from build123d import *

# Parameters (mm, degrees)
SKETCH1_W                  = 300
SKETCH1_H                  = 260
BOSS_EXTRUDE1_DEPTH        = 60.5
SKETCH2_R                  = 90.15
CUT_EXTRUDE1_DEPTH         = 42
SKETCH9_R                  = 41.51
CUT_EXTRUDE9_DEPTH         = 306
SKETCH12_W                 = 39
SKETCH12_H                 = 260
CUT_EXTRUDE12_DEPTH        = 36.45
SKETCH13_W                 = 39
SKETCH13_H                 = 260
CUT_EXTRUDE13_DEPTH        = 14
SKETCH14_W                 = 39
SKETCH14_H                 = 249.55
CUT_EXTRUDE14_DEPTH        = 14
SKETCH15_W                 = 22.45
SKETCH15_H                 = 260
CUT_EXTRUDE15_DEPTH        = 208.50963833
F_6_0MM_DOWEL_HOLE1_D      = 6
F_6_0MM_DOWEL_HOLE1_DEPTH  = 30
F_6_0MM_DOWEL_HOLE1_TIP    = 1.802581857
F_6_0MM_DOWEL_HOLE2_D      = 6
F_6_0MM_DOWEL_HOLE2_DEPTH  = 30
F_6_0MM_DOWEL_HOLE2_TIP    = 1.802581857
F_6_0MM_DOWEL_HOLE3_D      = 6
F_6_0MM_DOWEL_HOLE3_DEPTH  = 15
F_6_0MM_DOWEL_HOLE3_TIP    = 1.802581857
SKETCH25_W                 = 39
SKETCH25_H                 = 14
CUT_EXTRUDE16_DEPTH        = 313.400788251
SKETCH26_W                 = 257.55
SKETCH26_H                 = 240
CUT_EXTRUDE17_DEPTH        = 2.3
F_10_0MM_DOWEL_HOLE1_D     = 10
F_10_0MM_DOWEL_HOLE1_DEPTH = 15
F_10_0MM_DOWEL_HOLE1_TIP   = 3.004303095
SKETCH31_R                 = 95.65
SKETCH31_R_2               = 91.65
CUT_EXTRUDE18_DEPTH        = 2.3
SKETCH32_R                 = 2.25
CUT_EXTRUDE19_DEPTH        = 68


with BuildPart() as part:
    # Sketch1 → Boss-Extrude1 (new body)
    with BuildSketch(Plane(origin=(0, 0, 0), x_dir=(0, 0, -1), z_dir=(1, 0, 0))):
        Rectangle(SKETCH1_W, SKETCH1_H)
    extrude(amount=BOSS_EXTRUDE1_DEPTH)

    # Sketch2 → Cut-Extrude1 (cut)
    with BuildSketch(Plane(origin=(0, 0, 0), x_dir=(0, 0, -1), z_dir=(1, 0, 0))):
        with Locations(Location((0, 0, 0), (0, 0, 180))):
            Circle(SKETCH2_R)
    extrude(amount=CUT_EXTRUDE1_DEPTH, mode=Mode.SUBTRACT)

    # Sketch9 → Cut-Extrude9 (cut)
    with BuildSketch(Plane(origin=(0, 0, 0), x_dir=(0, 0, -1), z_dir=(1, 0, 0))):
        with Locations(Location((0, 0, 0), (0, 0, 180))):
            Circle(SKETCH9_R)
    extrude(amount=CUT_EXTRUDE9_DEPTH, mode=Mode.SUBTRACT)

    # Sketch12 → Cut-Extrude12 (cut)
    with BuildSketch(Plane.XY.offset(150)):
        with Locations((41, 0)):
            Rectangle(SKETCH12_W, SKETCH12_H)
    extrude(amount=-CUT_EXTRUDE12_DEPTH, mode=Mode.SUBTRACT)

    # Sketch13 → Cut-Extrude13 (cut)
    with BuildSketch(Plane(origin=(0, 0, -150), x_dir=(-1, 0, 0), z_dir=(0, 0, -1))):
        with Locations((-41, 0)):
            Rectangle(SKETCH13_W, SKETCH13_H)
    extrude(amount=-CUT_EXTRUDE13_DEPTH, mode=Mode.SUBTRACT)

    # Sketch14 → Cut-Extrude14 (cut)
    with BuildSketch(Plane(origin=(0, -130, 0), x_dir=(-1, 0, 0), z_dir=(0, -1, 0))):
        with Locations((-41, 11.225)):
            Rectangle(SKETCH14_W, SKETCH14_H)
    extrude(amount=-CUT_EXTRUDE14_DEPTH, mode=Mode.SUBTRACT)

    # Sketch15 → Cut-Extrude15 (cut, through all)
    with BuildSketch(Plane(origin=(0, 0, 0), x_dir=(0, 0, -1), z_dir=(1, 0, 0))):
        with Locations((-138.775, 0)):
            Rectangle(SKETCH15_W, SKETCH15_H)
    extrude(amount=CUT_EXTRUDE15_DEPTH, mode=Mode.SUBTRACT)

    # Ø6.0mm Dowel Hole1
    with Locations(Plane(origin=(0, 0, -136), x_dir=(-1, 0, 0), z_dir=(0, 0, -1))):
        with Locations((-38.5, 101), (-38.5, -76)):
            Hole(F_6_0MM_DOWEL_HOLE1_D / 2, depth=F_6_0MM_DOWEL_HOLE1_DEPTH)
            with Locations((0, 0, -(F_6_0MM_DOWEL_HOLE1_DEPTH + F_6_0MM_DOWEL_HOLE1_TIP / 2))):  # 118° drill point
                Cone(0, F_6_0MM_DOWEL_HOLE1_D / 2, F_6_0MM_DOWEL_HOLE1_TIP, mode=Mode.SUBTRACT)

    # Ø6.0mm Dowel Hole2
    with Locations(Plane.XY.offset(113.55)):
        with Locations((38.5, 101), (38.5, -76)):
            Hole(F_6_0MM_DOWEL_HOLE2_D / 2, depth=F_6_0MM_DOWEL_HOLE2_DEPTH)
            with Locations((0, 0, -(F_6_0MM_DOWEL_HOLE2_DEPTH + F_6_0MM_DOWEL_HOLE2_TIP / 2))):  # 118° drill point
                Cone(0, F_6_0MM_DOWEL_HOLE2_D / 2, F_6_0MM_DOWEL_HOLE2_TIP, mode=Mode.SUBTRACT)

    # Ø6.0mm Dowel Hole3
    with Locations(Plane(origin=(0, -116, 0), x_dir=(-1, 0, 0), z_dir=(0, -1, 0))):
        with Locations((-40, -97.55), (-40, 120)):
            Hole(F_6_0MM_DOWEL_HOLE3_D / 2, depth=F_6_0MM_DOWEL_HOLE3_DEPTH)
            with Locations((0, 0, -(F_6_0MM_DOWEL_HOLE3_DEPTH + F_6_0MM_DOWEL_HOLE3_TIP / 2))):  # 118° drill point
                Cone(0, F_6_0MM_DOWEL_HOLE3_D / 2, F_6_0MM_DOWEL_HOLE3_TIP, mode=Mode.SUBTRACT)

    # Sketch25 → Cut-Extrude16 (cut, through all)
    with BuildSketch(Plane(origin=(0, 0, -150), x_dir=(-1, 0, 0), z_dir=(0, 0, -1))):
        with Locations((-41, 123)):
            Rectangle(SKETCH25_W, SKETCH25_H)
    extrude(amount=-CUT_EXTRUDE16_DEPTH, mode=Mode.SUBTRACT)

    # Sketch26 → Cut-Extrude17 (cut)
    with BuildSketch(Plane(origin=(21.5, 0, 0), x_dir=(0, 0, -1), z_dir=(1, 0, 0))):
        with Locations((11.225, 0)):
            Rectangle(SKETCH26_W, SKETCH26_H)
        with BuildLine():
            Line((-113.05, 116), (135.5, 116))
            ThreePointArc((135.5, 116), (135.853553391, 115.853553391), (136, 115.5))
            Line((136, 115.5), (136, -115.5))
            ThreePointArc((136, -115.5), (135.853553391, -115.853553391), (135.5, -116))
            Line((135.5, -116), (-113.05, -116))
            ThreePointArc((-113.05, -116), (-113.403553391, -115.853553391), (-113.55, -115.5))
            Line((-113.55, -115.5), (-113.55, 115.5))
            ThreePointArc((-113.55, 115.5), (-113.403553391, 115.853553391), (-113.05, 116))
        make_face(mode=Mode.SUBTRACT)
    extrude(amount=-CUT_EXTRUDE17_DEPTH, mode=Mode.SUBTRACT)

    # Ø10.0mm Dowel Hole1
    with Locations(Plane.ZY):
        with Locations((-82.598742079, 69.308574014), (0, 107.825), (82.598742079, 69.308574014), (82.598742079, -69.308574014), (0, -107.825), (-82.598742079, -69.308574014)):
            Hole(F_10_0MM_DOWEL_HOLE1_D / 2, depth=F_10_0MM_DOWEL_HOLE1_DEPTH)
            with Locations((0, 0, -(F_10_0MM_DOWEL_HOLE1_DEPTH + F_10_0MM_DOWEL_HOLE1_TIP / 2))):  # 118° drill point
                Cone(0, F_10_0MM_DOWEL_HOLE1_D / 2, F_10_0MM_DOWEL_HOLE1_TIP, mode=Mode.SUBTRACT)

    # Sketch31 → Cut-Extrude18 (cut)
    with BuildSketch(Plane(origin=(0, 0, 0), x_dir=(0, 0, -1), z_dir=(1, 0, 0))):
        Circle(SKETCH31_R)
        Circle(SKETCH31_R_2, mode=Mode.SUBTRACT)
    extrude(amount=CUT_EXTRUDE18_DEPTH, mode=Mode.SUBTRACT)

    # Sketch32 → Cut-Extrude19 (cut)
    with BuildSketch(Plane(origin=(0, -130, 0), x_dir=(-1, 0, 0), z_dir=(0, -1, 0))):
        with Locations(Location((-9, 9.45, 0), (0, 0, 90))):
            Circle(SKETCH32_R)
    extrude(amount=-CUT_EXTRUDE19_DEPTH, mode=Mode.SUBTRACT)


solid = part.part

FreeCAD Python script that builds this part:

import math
import FreeCAD as App
import Part
import Sketcher
from FreeCAD import Vector
Q = App.Units.Quantity

doc = App.newDocument("Part")
params = doc.addObject("Spreadsheet::Sheet", "Params")
for row, (alias, value) in enumerate([
    ("sketch1_width", "260 mm"),
    ("sketch1_height", "300 mm"),
    ("pad1_length", "60.5 mm"),
    ("sketch2_diameter", "180.3 mm"),
    ("pocket1_length", "42 mm"),
    ("sketch3_diameter", "83.02 mm"),
    ("pocket2_length", "306 mm"),
    ("sketch4_width", "39 mm"),
    ("sketch4_height", "260 mm"),
    ("pocket3_length", "36.45 mm"),
    ("sketch5_width", "39 mm"),
    ("sketch5_height", "260 mm"),
    ("pocket4_length", "14 mm"),
    ("sketch6_width", "39 mm"),
    ("sketch6_height", "249.55 mm"),
    ("pocket5_length", "14 mm"),
    ("sketch7_width", "260 mm"),
    ("sketch7_height", "22.45 mm"),
    ("sketch8_diameter", "6 mm"),
    ("hole_diameter", "6 mm"),
    ("hole_depth", "30 mm"),
    ("sketch9_diameter", "6 mm"),
    ("hole2_diameter", "6 mm"),
    ("hole2_depth", "30 mm"),
    ("sketch10_diameter", "6 mm"),
    ("hole3_diameter", "6 mm"),
    ("hole3_depth", "15 mm"),
    ("sketch11_width", "39 mm"),
    ("sketch11_height", "14 mm"),
    ("sketch12_radius", "0.5 mm"),
    ("sketch12_width", "240 mm"),
    ("sketch12_width2", "231 mm"),
    ("sketch12_height", "257.55 mm"),
    ("pocket8_length", "2.3 mm"),
    ("sketch13_diameter", "10 mm"),
    ("hole4_diameter", "10 mm"),
    ("hole4_depth", "15 mm"),
    ("sketch14_diameter", "191.3 mm"),
    ("sketch14_diameter2", "183.3 mm"),
    ("pocket9_length", "2.3 mm"),
    ("sketch15_diameter", "4.5 mm"),
    ("pocket10_length", "68 mm"),
], start=1):
    params.set(f"A{row}", alias)
    params.set(f"B{row}", "=" + value)
    params.setAlias(f"B{row}", alias)

body = doc.addObject("PartDesign::Body", "Body")

# Sketch on YZ plane
sketch1 = body.newObject("Sketcher::SketchObject", "Sketch")
sketch1.AttachmentSupport = (doc.getObject("YZ_Plane"), [""])
sketch1.MapMode = "FlatFace"
sketch1.addGeometry([
    Part.LineSegment(Vector(130, 150, 0), Vector(-130, 150, 0)),
    Part.LineSegment(Vector(-130, 150, 0), Vector(-130, -150, 0)),
    Part.LineSegment(Vector(-130, -150, 0), Vector(130, -150, 0)),
    Part.LineSegment(Vector(130, -150, 0), Vector(130, 150, 0)),
], False)
sketch1.addConstraint([
    Sketcher.Constraint("Coincident", 0, 2, 1, 1),
    Sketcher.Constraint("Coincident", 1, 2, 2, 1),
    Sketcher.Constraint("Coincident", 2, 2, 3, 1),
    Sketcher.Constraint("Coincident", 3, 2, 0, 1),
    Sketcher.Constraint("Horizontal", 0),
    Sketcher.Constraint("Vertical", 1),
    Sketcher.Constraint("Horizontal", 2),
    Sketcher.Constraint("Vertical", 3),
    Sketcher.Constraint("Symmetric", 0, 2, 2, 2, -1, 1),
    Sketcher.Constraint("DistanceX", 0, 2, 0, 1, Q("260 mm")),
    Sketcher.Constraint("DistanceY", 1, 2, 1, 1, Q("300 mm")),
])
sketch1.setExpression("Constraints[9]", "Params.sketch1_width")
sketch1.setExpression("Constraints[10]", "Params.sketch1_height")
pad1 = body.newObject("PartDesign::Pad", "Pad")
pad1.Profile = sketch1
pad1.setExpression("Length", "Params.pad1_length")

# Sketch on YZ plane
sketch2 = body.newObject("Sketcher::SketchObject", "Sketch001")
sketch2.AttachmentSupport = (doc.getObject("YZ_Plane"), [""])
sketch2.MapMode = "FlatFace"
sketch2.addGeometry(Part.Circle(Vector(0, 0, 0), Vector(0, 0, 1), 90), False)
sketch2.addConstraint([
    Sketcher.Constraint("Coincident", 0, 3, -1, 1),
    Sketcher.Constraint("Diameter", 0, Q("180.3 mm")),
])
sketch2.setExpression("Constraints[1]", "Params.sketch2_diameter")
pocket1 = body.newObject("PartDesign::Pocket", "Pocket")
pocket1.Profile = sketch2
pocket1.setExpression("Length", "Params.pocket1_length")
pocket1.Reversed = True

# Sketch on YZ plane
sketch3 = body.newObject("Sketcher::SketchObject", "Sketch002")
sketch3.AttachmentSupport = (doc.getObject("YZ_Plane"), [""])
sketch3.MapMode = "FlatFace"
sketch3.addGeometry(Part.Circle(Vector(0, 0, 0), Vector(0, 0, 1), 42), False)
sketch3.addConstraint([
    Sketcher.Constraint("Coincident", 0, 3, -1, 1),
    Sketcher.Constraint("Diameter", 0, Q("83.02 mm")),
])
sketch3.setExpression("Constraints[1]", "Params.sketch3_diameter")
pocket2 = body.newObject("PartDesign::Pocket", "Pocket001")
pocket2.Profile = sketch3
pocket2.setExpression("Length", "Params.pocket2_length")
pocket2.Reversed = True

# Sketch on XY plane
sketch4 = body.newObject("Sketcher::SketchObject", "Sketch003")
sketch4.AttachmentSupport = (doc.getObject("XY_Plane"), [""])
sketch4.MapMode = "FlatFace"
sketch4.AttachmentOffset = App.Placement(Vector(0, 0, 150), App.Rotation())
sketch4.addGeometry([
    Part.LineSegment(Vector(22, 130, 0), Vector(22, -130, 0)),
    Part.LineSegment(Vector(22, -130, 0), Vector(60, -130, 0)),
    Part.LineSegment(Vector(60, -130, 0), Vector(60, 130, 0)),
    Part.LineSegment(Vector(60, 130, 0), Vector(22, 130, 0)),
], False)
sketch4.addConstraint([
    Sketcher.Constraint("Coincident", 0, 2, 1, 1),
    Sketcher.Constraint("Coincident", 1, 2, 2, 1),
    Sketcher.Constraint("Coincident", 2, 2, 3, 1),
    Sketcher.Constraint("Coincident", 3, 2, 0, 1),
    Sketcher.Constraint("Vertical", 0),
    Sketcher.Constraint("Horizontal", 1),
    Sketcher.Constraint("Vertical", 2),
    Sketcher.Constraint("Horizontal", 3),
    Sketcher.Constraint("DistanceX", 1, 1, 1, 2, Q("39 mm")),
    Sketcher.Constraint("DistanceY", 0, 2, 0, 1, Q("260 mm")),
    Sketcher.Constraint("DistanceY", 0, 2, -1, 1, Q("130 mm")),
    Sketcher.Constraint("DistanceX", -1, 1, 0, 2, Q("21.5 mm")),
])
sketch4.setExpression("Constraints[8]", "Params.sketch4_width")
sketch4.setExpression("Constraints[9]", "Params.sketch4_height")
pocket3 = body.newObject("PartDesign::Pocket", "Pocket002")
pocket3.Profile = sketch4
pocket3.setExpression("Length", "Params.pocket3_length")

# Sketch on XY plane
sketch5 = body.newObject("Sketcher::SketchObject", "Sketch004")
sketch5.AttachmentSupport = (doc.getObject("XY_Plane"), [""])
sketch5.MapMode = "FlatFace"
sketch5.AttachmentOffset = App.Placement(Vector(0, 0, -150), App.Rotation())
sketch5.addGeometry([
    Part.LineSegment(Vector(60, 130, 0), Vector(60, -130, 0)),
    Part.LineSegment(Vector(60, -130, 0), Vector(22, -130, 0)),
    Part.LineSegment(Vector(22, -130, 0), Vector(22, 130, 0)),
    Part.LineSegment(Vector(22, 130, 0), Vector(60, 130, 0)),
], False)
sketch5.addConstraint([
    Sketcher.Constraint("Coincident", 0, 2, 1, 1),
    Sketcher.Constraint("Coincident", 1, 2, 2, 1),
    Sketcher.Constraint("Coincident", 2, 2, 3, 1),
    Sketcher.Constraint("Coincident", 3, 2, 0, 1),
    Sketcher.Constraint("Vertical", 0),
    Sketcher.Constraint("Horizontal", 1),
    Sketcher.Constraint("Vertical", 2),
    Sketcher.Constraint("Horizontal", 3),
    Sketcher.Constraint("DistanceX", 1, 2, 1, 1, Q("39 mm")),
    Sketcher.Constraint("DistanceY", 0, 2, 0, 1, Q("260 mm")),
    Sketcher.Constraint("DistanceY", 0, 2, -1, 1, Q("130 mm")),
    Sketcher.Constraint("DistanceX", -1, 1, 0, 2, Q("60.5 mm")),
])
sketch5.setExpression("Constraints[8]", "Params.sketch5_width")
sketch5.setExpression("Constraints[9]", "Params.sketch5_height")
pocket4 = body.newObject("PartDesign::Pocket", "Pocket003")
pocket4.Profile = sketch5
pocket4.setExpression("Length", "Params.pocket4_length")
pocket4.Reversed = True

# Sketch on XZ plane
sketch6 = body.newObject("Sketcher::SketchObject", "Sketch005")
sketch6.AttachmentSupport = (doc.getObject("XZ_Plane"), [""])
sketch6.MapMode = "FlatFace"
sketch6.AttachmentOffset = App.Placement(Vector(0, 0, 130), App.Rotation())
sketch6.addGeometry([
    Part.LineSegment(Vector(60, -136, 0), Vector(60, 114, 0)),
    Part.LineSegment(Vector(60, 114, 0), Vector(22, 114, 0)),
    Part.LineSegment(Vector(22, 114, 0), Vector(22, -136, 0)),
    Part.LineSegment(Vector(22, -136, 0), Vector(60, -136, 0)),
], False)
sketch6.addConstraint([
    Sketcher.Constraint("Coincident", 0, 2, 1, 1),
    Sketcher.Constraint("Coincident", 1, 2, 2, 1),
    Sketcher.Constraint("Coincident", 2, 2, 3, 1),
    Sketcher.Constraint("Coincident", 3, 2, 0, 1),
    Sketcher.Constraint("Vertical", 0),
    Sketcher.Constraint("Horizontal", 1),
    Sketcher.Constraint("Vertical", 2),
    Sketcher.Constraint("Horizontal", 3),
    Sketcher.Constraint("DistanceX", 1, 2, 1, 1, Q("39 mm")),
    Sketcher.Constraint("DistanceY", 2, 2, -1, 1, Q("136 mm")),
    Sketcher.Constraint("DistanceY", 0, 1, 0, 2, Q("249.55 mm")),
    Sketcher.Constraint("DistanceX", -1, 1, 0, 2, Q("60.5 mm")),
])
sketch6.setExpression("Constraints[8]", "Params.sketch6_width")
sketch6.setExpression("Constraints[10]", "Params.sketch6_height")
pocket5 = body.newObject("PartDesign::Pocket", "Pocket004")
pocket5.Profile = sketch6
pocket5.setExpression("Length", "Params.pocket5_length")

# Sketch on YZ plane
sketch7 = body.newObject("Sketcher::SketchObject", "Sketch006")
sketch7.AttachmentSupport = (doc.getObject("YZ_Plane"), [""])
sketch7.MapMode = "FlatFace"
sketch7.addGeometry([
    Part.LineSegment(Vector(130, 150, 0), Vector(-130, 150, 0)),
    Part.LineSegment(Vector(-130, 150, 0), Vector(-130, 128, 0)),
    Part.LineSegment(Vector(-130, 128, 0), Vector(130, 128, 0)),
    Part.LineSegment(Vector(130, 128, 0), Vector(130, 150, 0)),
], False)
sketch7.addConstraint([
    Sketcher.Constraint("Coincident", 0, 2, 1, 1),
    Sketcher.Constraint("Coincident", 1, 2, 2, 1),
    Sketcher.Constraint("Coincident", 2, 2, 3, 1),
    Sketcher.Constraint("Coincident", 3, 2, 0, 1),
    Sketcher.Constraint("Horizontal", 0),
    Sketcher.Constraint("Vertical", 1),
    Sketcher.Constraint("Horizontal", 2),
    Sketcher.Constraint("Vertical", 3),
    Sketcher.Constraint("DistanceX", 0, 2, 0, 1, Q("260 mm")),
    Sketcher.Constraint("DistanceX", 0, 2, -1, 1, Q("130 mm")),
    Sketcher.Constraint("DistanceY", -1, 1, 0, 2, Q("150 mm")),
    Sketcher.Constraint("DistanceY", 1, 2, 1, 1, Q("22.45 mm")),
])
sketch7.setExpression("Constraints[8]", "Params.sketch7_width")
sketch7.setExpression("Constraints[11]", "Params.sketch7_height")
pocket6 = body.newObject("PartDesign::Pocket", "Pocket005")
pocket6.Profile = sketch7
pocket6.Type = "ThroughAll"
pocket6.Reversed = True

# Sketch on XY plane
sketch8 = body.newObject("Sketcher::SketchObject", "Sketch007")
sketch8.AttachmentSupport = (doc.getObject("XY_Plane"), [""])
sketch8.MapMode = "FlatFace"
sketch8.AttachmentOffset = App.Placement(Vector(0, 0, -136), App.Rotation())
sketch8.addGeometry([
    Part.Circle(Vector(38.5, 101, 0), Vector(0, 0, 1), 3),
    Part.Circle(Vector(38.5, -76, 0), Vector(0, 0, 1), 3),
], False)
sketch8.addConstraint([
    Sketcher.Constraint("Equal", 0, 1),
    Sketcher.Constraint("Vertical", 0, 3, 1, 3),
    Sketcher.Constraint("Diameter", 0, Q("6 mm")),
    Sketcher.Constraint("DistanceY", -1, 1, 0, 3, Q("101 mm")),
    Sketcher.Constraint("DistanceY", 1, 3, -1, 1, Q("76 mm")),
    Sketcher.Constraint("DistanceX", -1, 1, 0, 3, Q("38.5 mm")),
])
sketch8.setExpression("Constraints[2]", "Params.sketch8_diameter")
doc.recompute()
hole = body.newObject("PartDesign::Hole", "Hole")
hole.Profile = sketch8
hole.ThreadType = "None"
hole.setExpression("Diameter", "Params.hole_diameter")
hole.DepthType = "Dimension"
hole.setExpression("Depth", "Params.hole_depth")
hole.DrillPoint = "Angled"
hole.DrillPointAngle = 118
hole.Reversed = True

# Sketch on XY plane
sketch9 = body.newObject("Sketcher::SketchObject", "Sketch008")
sketch9.AttachmentSupport = (doc.getObject("XY_Plane"), [""])
sketch9.MapMode = "FlatFace"
sketch9.AttachmentOffset = App.Placement(Vector(0, 0, 113.55), App.Rotation())
sketch9.addGeometry([
    Part.Circle(Vector(38.5, 101, 0), Vector(0, 0, 1), 3),
    Part.Circle(Vector(38.5, -76, 0), Vector(0, 0, 1), 3),
], False)
sketch9.addConstraint([
    Sketcher.Constraint("Equal", 0, 1),
    Sketcher.Constraint("Vertical", 0, 3, 1, 3),
    Sketcher.Constraint("Diameter", 0, Q("6 mm")),
    Sketcher.Constraint("DistanceY", -1, 1, 0, 3, Q("101 mm")),
    Sketcher.Constraint("DistanceY", 1, 3, -1, 1, Q("76 mm")),
    Sketcher.Constraint("DistanceX", -1, 1, 0, 3, Q("38.5 mm")),
])
sketch9.setExpression("Constraints[2]", "Params.sketch9_diameter")
doc.recompute()
hole2 = body.newObject("PartDesign::Hole", "Hole001")
hole2.Profile = sketch9
hole2.ThreadType = "None"
hole2.setExpression("Diameter", "Params.hole2_diameter")
hole2.DepthType = "Dimension"
hole2.setExpression("Depth", "Params.hole2_depth")
hole2.DrillPoint = "Angled"
hole2.DrillPointAngle = 118

# Sketch on XZ plane
sketch10 = body.newObject("Sketcher::SketchObject", "Sketch009")
sketch10.AttachmentSupport = (doc.getObject("XZ_Plane"), [""])
sketch10.MapMode = "FlatFace"
sketch10.AttachmentOffset = App.Placement(Vector(0, 0, 116), App.Rotation())
sketch10.addGeometry([
    Part.Circle(Vector(40, 97.5, 0), Vector(0, 0, 1), 3),
    Part.Circle(Vector(40, -120, 0), Vector(0, 0, 1), 3),
], False)
sketch10.addConstraint([
    Sketcher.Constraint("Equal", 0, 1),
    Sketcher.Constraint("Vertical", 0, 3, 1, 3),
    Sketcher.Constraint("Diameter", 0, Q("6 mm")),
    Sketcher.Constraint("DistanceX", -1, 1, 0, 3, Q("40 mm")),
    Sketcher.Constraint("DistanceY", 1, 3, -1, 1, Q("120 mm")),
    Sketcher.Constraint("DistanceY", -1, 1, 0, 3, Q("97.55 mm")),
])
sketch10.setExpression("Constraints[2]", "Params.sketch10_diameter")
doc.recompute()
hole3 = body.newObject("PartDesign::Hole", "Hole002")
hole3.Profile = sketch10
hole3.ThreadType = "None"
hole3.setExpression("Diameter", "Params.hole3_diameter")
hole3.DepthType = "Dimension"
hole3.setExpression("Depth", "Params.hole3_depth")
hole3.DrillPoint = "Angled"
hole3.DrillPointAngle = 118

# Sketch on XY plane
sketch11 = body.newObject("Sketcher::SketchObject", "Sketch010")
sketch11.AttachmentSupport = (doc.getObject("XY_Plane"), [""])
sketch11.MapMode = "FlatFace"
sketch11.AttachmentOffset = App.Placement(Vector(0, 0, -150), App.Rotation())
sketch11.addGeometry([
    Part.LineSegment(Vector(60, 130, 0), Vector(60, 116, 0)),
    Part.LineSegment(Vector(60, 116, 0), Vector(22, 116, 0)),
    Part.LineSegment(Vector(22, 116, 0), Vector(22, 130, 0)),
    Part.LineSegment(Vector(22, 130, 0), Vector(60, 130, 0)),
], False)
sketch11.addConstraint([
    Sketcher.Constraint("Coincident", 0, 2, 1, 1),
    Sketcher.Constraint("Coincident", 1, 2, 2, 1),
    Sketcher.Constraint("Coincident", 2, 2, 3, 1),
    Sketcher.Constraint("Coincident", 3, 2, 0, 1),
    Sketcher.Constraint("Vertical", 0),
    Sketcher.Constraint("Horizontal", 1),
    Sketcher.Constraint("Vertical", 2),
    Sketcher.Constraint("Horizontal", 3),
    Sketcher.Constraint("DistanceX", 1, 2, 1, 1, Q("39 mm")),
    Sketcher.Constraint("DistanceY", 0, 2, 0, 1, Q("14 mm")),
    Sketcher.Constraint("DistanceY", -1, 1, 0, 2, Q("116 mm")),
    Sketcher.Constraint("DistanceX", -1, 1, 0, 2, Q("60.5 mm")),
])
sketch11.setExpression("Constraints[8]", "Params.sketch11_width")
sketch11.setExpression("Constraints[9]", "Params.sketch11_height")
pocket7 = body.newObject("PartDesign::Pocket", "Pocket006")
pocket7.Profile = sketch11
pocket7.Type = "ThroughAll"
pocket7.Reversed = True

# Sketch on YZ plane
sketch12 = body.newObject("Sketcher::SketchObject", "Sketch011")
sketch12.AttachmentSupport = (doc.getObject("YZ_Plane"), [""])
sketch12.MapMode = "FlatFace"
sketch12.AttachmentOffset = App.Placement(Vector(0, 0, 21.5), App.Rotation())
sketch12.addGeometry([
    Part.LineSegment(Vector(120, 117.55, 0), Vector(-120, 117.55, 0)),  # 0
    Part.LineSegment(Vector(-120, 117.55, 0), Vector(-120, -140, 0)),  # 1
    Part.LineSegment(Vector(-120, -140, 0), Vector(120, -140, 0)),  # 2
    Part.LineSegment(Vector(120, -140, 0), Vector(120, 117.55, 0)),  # 3
    Part.ArcOfCircle(Part.Circle(Vector(115.5, 113.05, 0), Vector(0, 0, 1), 0.5), math.radians(0), math.radians(90)),  # 4
    Part.LineSegment(Vector(116, 113.05, 0), Vector(116, -135.5, 0)),  # 5
    Part.ArcOfCircle(Part.Circle(Vector(115.5, -135.5, 0), Vector(0, 0, 1), 0.5), math.radians(-90), math.radians(0)),  # 6
    Part.LineSegment(Vector(115.5, -136, 0), Vector(-115.5, -136, 0)),  # 7
    Part.ArcOfCircle(Part.Circle(Vector(-115.5, -135.5, 0), Vector(0, 0, 1), 0.5), math.radians(180), math.radians(270)),  # 8
    Part.LineSegment(Vector(-116, -135.5, 0), Vector(-116, 113.05, 0)),  # 9
    Part.ArcOfCircle(Part.Circle(Vector(-115.5, 113.05, 0), Vector(0, 0, 1), 0.5), math.radians(90), math.radians(180)),  # 10
    Part.LineSegment(Vector(-115.5, 113.55, 0), Vector(115.5, 113.55, 0)),  # 11
], False)
sketch12.addConstraint([
    Sketcher.Constraint("Coincident", 0, 2, 1, 1),
    Sketcher.Constraint("Coincident", 1, 2, 2, 1),
    Sketcher.Constraint("Coincident", 2, 2, 3, 1),
    Sketcher.Constraint("Coincident", 3, 2, 0, 1),
    Sketcher.Constraint("Tangent", 4, 1, 5, 1),
    Sketcher.Constraint("Tangent", 5, 2, 6, 2),
    Sketcher.Constraint("Tangent", 6, 1, 7, 1),
    Sketcher.Constraint("Tangent", 7, 2, 8, 2),
    Sketcher.Constraint("Tangent", 8, 1, 9, 1),
    Sketcher.Constraint("Tangent", 9, 2, 10, 2),
    Sketcher.Constraint("Tangent", 10, 1, 11, 1),
    Sketcher.Constraint("Tangent", 11, 2, 4, 2),
    Sketcher.Constraint("Horizontal", 0),
    Sketcher.Constraint("Vertical", 1),
    Sketcher.Constraint("Horizontal", 2),
    Sketcher.Constraint("Vertical", 3),
    Sketcher.Constraint("Vertical", 5),
    Sketcher.Constraint("Horizontal", 7),
    Sketcher.Constraint("Vertical", 9),
    Sketcher.Constraint("Horizontal", 11),
    Sketcher.Constraint("Equal", 4, 6),
    Sketcher.Constraint("Equal", 6, 8),
    Sketcher.Constraint("Equal", 8, 10),
    Sketcher.Constraint("Radius", 4, Q("0.5 mm")),
    Sketcher.Constraint("DistanceX", 0, 2, 0, 1, Q("240 mm")),
    Sketcher.Constraint("DistanceX", 7, 2, 7, 1, Q("231 mm")),
    Sketcher.Constraint("DistanceX", 0, 2, -1, 1, Q("120 mm")),
    Sketcher.Constraint("DistanceY", 1, 2, -1, 1, Q("140 mm")),
    Sketcher.Constraint("DistanceX", -1, 1, 4, 1, Q("116 mm")),
    Sketcher.Constraint("DistanceY", 6, 1, -1, 1, Q("136 mm")),
    Sketcher.Constraint("DistanceY", 10, 1, 0, 2, Q("4 mm")),
    Sketcher.Constraint("DistanceY", 1, 2, 1, 1, Q("257.55 mm")),
])
sketch12.setExpression("Constraints[23]", "Params.sketch12_radius")
sketch12.setExpression("Constraints[24]", "Params.sketch12_width")
sketch12.setExpression("Constraints[25]", "Params.sketch12_width2")
sketch12.setExpression("Constraints[31]", "Params.sketch12_height")
pocket8 = body.newObject("PartDesign::Pocket", "Pocket007")
pocket8.Profile = sketch12
pocket8.setExpression("Length", "Params.pocket8_length")

# Sketch on YZ plane
sketch13 = body.newObject("Sketcher::SketchObject", "Sketch012")
sketch13.AttachmentSupport = (doc.getObject("YZ_Plane"), [""])
sketch13.MapMode = "FlatFace"
sketch13.addGeometry([
    Part.Circle(Vector(69, -83, 0), Vector(0, 0, 1), 5),  # 0
    Part.Circle(Vector(108, 0, 0), Vector(0, 0, 1), 5),  # 1
    Part.Circle(Vector(69, 83, 0), Vector(0, 0, 1), 5),  # 2
    Part.Circle(Vector(-69, 83, 0), Vector(0, 0, 1), 5),  # 3
    Part.Circle(Vector(-108, 0, 0), Vector(0, 0, 1), 5),  # 4
    Part.Circle(Vector(-69, -83, 0), Vector(0, 0, 1), 5),  # 5
], False)
sketch13.addConstraint([
    Sketcher.Constraint("Equal", 0, 1),
    Sketcher.Constraint("Equal", 1, 2),
    Sketcher.Constraint("Equal", 2, 3),
    Sketcher.Constraint("Equal", 3, 4),
    Sketcher.Constraint("Equal", 4, 5),
    Sketcher.Constraint("Symmetric", 0, 3, 3, 3, -1, 1),
    Sketcher.Constraint("Symmetric", 1, 3, 4, 3, -1, 1),
    Sketcher.Constraint("Symmetric", 2, 3, 5, 3, -1, 1),
    Sketcher.Constraint("Symmetric", 2, 3, 3, 3, -2),
    Sketcher.Constraint("PointOnObject", 1, 3, -1),
    Sketcher.Constraint("Diameter", 0, Q("10 mm")),
    Sketcher.Constraint("DistanceX", 4, 3, 1, 3, Q("215.65 mm")),
    Sketcher.Constraint("DistanceX", 3, 3, 2, 3, Q("138.617148 mm")),
    Sketcher.Constraint("DistanceY", 0, 3, -1, 1, Q("82.598742 mm")),
])
sketch13.setExpression("Constraints[10]", "Params.sketch13_diameter")
doc.recompute()
hole4 = body.newObject("PartDesign::Hole", "Hole003")
hole4.Profile = sketch13
hole4.ThreadType = "None"
hole4.setExpression("Diameter", "Params.hole4_diameter")
hole4.DepthType = "Dimension"
hole4.setExpression("Depth", "Params.hole4_depth")
hole4.DrillPoint = "Angled"
hole4.DrillPointAngle = 118
hole4.Reversed = True

# Sketch on YZ plane
sketch14 = body.newObject("Sketcher::SketchObject", "Sketch013")
sketch14.AttachmentSupport = (doc.getObject("YZ_Plane"), [""])
sketch14.MapMode = "FlatFace"
sketch14.addGeometry([
    Part.Circle(Vector(0, 0, 0), Vector(0, 0, 1), 96),
    Part.Circle(Vector(0, 0, 0), Vector(0, 0, 1), 92),
], False)
sketch14.addConstraint([
    Sketcher.Constraint("Coincident", 0, 3, -1, 1),
    Sketcher.Constraint("Coincident", 1, 3, -1, 1),
    Sketcher.Constraint("Diameter", 0, Q("191.3 mm")),
    Sketcher.Constraint("Diameter", 1, Q("183.3 mm")),
])
sketch14.setExpression("Constraints[2]", "Params.sketch14_diameter")
sketch14.setExpression("Constraints[3]", "Params.sketch14_diameter2")
pocket9 = body.newObject("PartDesign::Pocket", "Pocket008")
pocket9.Profile = sketch14
pocket9.setExpression("Length", "Params.pocket9_length")
pocket9.Reversed = True

# Sketch on XZ plane
sketch15 = body.newObject("Sketcher::SketchObject", "Sketch014")
sketch15.AttachmentSupport = (doc.getObject("XZ_Plane"), [""])
sketch15.MapMode = "FlatFace"
sketch15.AttachmentOffset = App.Placement(Vector(0, 0, 130), App.Rotation())
sketch15.addGeometry(Part.Circle(Vector(9, -9.4, 0), Vector(0, 0, 1), 2.2), False)
sketch15.addConstraint([
    Sketcher.Constraint("Diameter", 0, Q("4.5 mm")),
    Sketcher.Constraint("DistanceX", -1, 1, 0, 3, Q("9 mm")),
    Sketcher.Constraint("DistanceY", 0, 3, -1, 1, Q("9.45 mm")),
])
sketch15.setExpression("Constraints[0]", "Params.sketch15_diameter")
pocket10 = body.newObject("PartDesign::Pocket", "Pocket009")
pocket10.Profile = sketch15
pocket10.setExpression("Length", "Params.pocket10_length")

doc.recompute()
